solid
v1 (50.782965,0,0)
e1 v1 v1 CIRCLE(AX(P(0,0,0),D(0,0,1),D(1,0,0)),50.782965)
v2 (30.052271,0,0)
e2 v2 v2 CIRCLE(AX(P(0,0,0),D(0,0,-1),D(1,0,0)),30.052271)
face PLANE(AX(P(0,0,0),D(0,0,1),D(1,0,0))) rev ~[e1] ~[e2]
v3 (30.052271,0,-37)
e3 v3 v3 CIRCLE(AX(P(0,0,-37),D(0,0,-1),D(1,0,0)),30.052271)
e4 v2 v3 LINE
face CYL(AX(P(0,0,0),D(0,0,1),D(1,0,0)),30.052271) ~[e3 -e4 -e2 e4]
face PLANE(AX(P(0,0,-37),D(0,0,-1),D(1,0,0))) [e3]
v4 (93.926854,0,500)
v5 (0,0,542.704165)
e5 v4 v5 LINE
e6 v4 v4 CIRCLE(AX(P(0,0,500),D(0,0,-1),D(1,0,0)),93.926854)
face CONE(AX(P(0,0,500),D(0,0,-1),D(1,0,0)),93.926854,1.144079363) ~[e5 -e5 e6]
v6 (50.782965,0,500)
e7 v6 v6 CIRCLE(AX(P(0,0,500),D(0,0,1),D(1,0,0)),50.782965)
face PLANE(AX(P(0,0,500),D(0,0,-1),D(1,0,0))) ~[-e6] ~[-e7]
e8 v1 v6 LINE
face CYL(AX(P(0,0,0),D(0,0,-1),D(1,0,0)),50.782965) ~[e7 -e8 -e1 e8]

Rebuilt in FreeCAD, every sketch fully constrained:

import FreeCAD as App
import Part
import Sketcher

V = App.Vector


def add_polygon(sketch, points):
    """Adds a closed chain of lines whose ends are joined by coincident constraints."""
    first, n = sketch.GeometryCount, len(points)
    for a, b in zip(points, points[1:] + points[:1]):
        sketch.addGeometry(Part.LineSegment(App.Vector(*a, 0), App.Vector(*b, 0)), False)
    for i in range(n):
        sketch.addConstraint(Sketcher.Constraint("Coincident", first + i, 2, first + (i + 1) % n, 1))

doc = App.newDocument("Part")
body = doc.addObject("PartDesign::Body", "Body")

sketch1 = doc.addObject("Sketcher::SketchObject", "Sketch")
body.addObject(sketch1)
sketch1.AttachmentSupport = (doc.XY_Plane, [""])
sketch1.MapMode = "FlatFace"
sketch1.addGeometry(Part.Circle(V(0, 0, 0), V(0, 0, 1), 50.782965), False)
sketch1.addConstraint([
    Sketcher.Constraint("Coincident", 0, 3, -1, 1),
    Sketcher.Constraint("Diameter", 0, 101.56593),
])
pad1 = doc.addObject("PartDesign::Pad", "Pad")
body.addObject(pad1)
pad1.Profile = sketch1
pad1.Length = 500

sketch2 = doc.addObject("Sketcher::SketchObject", "Sketch001")
body.addObject(sketch2)
sketch2.AttachmentSupport = (doc.XZ_Plane, [""])
sketch2.MapMode = "FlatFace"
add_polygon(sketch2, [(93.926854, 500), (0, 542.704165), (0, 500)])
sketch2.addConstraint([
    Sketcher.Constraint("Vertical", 1),
    Sketcher.Constraint("Horizontal", 2),
    Sketcher.Constraint("PointOnObject", 0, 2, -2),
    Sketcher.Constraint("DistanceY", -1, 1, 1, 2, 500.0),
    Sketcher.Constraint("Distance", 0, 103.178969),
    Sketcher.Constraint("DistanceX", 2, 1, 2, 2, 93.926854),
])
revolution = doc.addObject("PartDesign::Revolution", "Revolution")
body.addObject(revolution)
revolution.Profile = sketch2
revolution.ReferenceAxis = (sketch2, ["V_Axis"])
revolution.Angle = 360

sketch3 = doc.addObject("Sketcher::SketchObject", "Sketch002")
body.addObject(sketch3)
sketch3.AttachmentSupport = (doc.XY_Plane, [""])
sketch3.MapMode = "FlatFace"
sketch3.addGeometry(Part.Circle(V(0, 0, 0), V(0, 0, 1), 30.052271), False)
sketch3.addConstraint([
    Sketcher.Constraint("Coincident", 0, 3, -1, 1),
    Sketcher.Constraint("Diameter", 0, 60.104542),
])
pad2 = doc.addObject("PartDesign::Pad", "Pad001")
body.addObject(pad2)
pad2.Profile = sketch3
pad2.Length = 37
pad2.Reversed = True

doc.recompute()
